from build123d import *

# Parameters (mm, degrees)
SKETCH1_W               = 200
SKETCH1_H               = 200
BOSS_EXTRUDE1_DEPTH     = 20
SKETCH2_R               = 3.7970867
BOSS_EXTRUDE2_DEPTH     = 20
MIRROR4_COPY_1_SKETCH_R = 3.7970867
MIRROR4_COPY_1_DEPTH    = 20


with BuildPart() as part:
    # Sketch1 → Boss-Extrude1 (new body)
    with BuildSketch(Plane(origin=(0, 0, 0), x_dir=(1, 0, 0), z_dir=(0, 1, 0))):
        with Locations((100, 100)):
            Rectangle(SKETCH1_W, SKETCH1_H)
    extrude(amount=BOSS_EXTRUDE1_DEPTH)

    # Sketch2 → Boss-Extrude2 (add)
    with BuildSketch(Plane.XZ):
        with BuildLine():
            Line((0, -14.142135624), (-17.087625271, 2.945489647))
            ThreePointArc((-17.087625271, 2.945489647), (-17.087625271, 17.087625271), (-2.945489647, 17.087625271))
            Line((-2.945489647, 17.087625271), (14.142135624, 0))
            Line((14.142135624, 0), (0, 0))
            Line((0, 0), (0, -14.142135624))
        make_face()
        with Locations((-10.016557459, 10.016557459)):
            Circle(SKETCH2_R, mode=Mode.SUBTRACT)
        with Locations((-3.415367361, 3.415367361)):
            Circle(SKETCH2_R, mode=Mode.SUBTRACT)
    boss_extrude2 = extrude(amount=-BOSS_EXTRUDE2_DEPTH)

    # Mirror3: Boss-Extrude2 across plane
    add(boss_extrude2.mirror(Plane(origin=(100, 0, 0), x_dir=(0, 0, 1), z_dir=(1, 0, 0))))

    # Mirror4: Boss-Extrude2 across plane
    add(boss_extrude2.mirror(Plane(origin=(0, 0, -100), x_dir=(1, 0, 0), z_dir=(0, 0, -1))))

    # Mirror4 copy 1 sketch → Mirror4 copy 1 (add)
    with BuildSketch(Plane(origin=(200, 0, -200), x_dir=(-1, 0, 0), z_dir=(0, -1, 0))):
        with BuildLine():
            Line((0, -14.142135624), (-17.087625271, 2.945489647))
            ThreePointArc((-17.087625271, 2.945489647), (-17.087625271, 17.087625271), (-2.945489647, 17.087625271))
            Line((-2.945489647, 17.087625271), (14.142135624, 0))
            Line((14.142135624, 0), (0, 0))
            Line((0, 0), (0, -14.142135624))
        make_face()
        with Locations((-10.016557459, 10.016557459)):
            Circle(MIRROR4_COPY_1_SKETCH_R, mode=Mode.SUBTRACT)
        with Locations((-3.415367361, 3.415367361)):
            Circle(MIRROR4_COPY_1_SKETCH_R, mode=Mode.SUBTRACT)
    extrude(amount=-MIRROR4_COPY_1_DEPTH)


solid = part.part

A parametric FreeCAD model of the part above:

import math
import FreeCAD as App
import Part
import Sketcher

V = App.Vector

doc = App.newDocument("Part")
body = doc.addObject("PartDesign::Body", "Body")

# Sketch on XZ plane
sketch1 = body.newObject("Sketcher::SketchObject", "Sketch")
sketch1.AttachmentSupport = (doc.getObject("XZ_Plane"), [""])
sketch1.MapMode = "FlatFace"
sketch1.addGeometry([
    Part.LineSegment(V(0, -200, 0), V(0, 0, 0)),
    Part.LineSegment(V(0, 0, 0), V(200, 0, 0)),
    Part.LineSegment(V(200, 0, 0), V(200, -200, 0)),
    Part.LineSegment(V(200, -200, 0), V(0, -200, 0)),
], False)
sketch1.addConstraint([
    Sketcher.Constraint("Coincident", 0, 2, 1, 1),
    Sketcher.Constraint("Coincident", 1, 2, 2, 1),
    Sketcher.Constraint("Coincident", 2, 2, 3, 1),
    Sketcher.Constraint("Coincident", 3, 2, 0, 1),
    Sketcher.Constraint("Vertical", 0),
    Sketcher.Constraint("Horizontal", 1),
    Sketcher.Constraint("Vertical", 2),
    Sketcher.Constraint("Horizontal", 3),
    Sketcher.Constraint("Coincident", 0, 2, -1, 1),
    Sketcher.Constraint("Equal", 3, 0),
    Sketcher.Constraint("DistanceX", 1, 1, 1, 2, 200.0),
])
pad1 = body.newObject("PartDesign::Pad", "Pad")
pad1.Profile = sketch1
pad1.Length = 20
pad1.Reversed = True

# Sketch on XZ plane
sketch2 = body.newObject("Sketcher::SketchObject", "Sketch001")
sketch2.AttachmentSupport = (doc.getObject("XZ_Plane"), [""])
sketch2.MapMode = "FlatFace"
sketch2.addGeometry([
    Part.LineSegment(V(-17.1, 2.9, 0), V(0, -14.1, 0)),  # 0
    Part.LineSegment(V(0, -14.1, 0), V(0, 0, 0)),  # 1
    Part.LineSegment(V(0, 0, 0), V(14.1, 0, 0)),  # 2
    Part.LineSegment(V(14.1, 0, 0), V(-2.9, 17.1, 0)),  # 3
    Part.ArcOfCircle(Part.Circle(V(-10, 10, 0), V(0, 0, 1), 10), math.radians(45), math.radians(225)),  # 4
    Part.Circle(V(-3.4, 3.4, 0), V(0, 0, 1), 3.8),  # 5
    Part.Circle(V(-10, 10, 0), V(0, 0, 1), 3.8),  # 6
], False)
sketch2.addConstraint([
    Sketcher.Constraint("Coincident", 0, 2, 1, 1),
    Sketcher.Constraint("Coincident", 1, 2, 2, 1),
    Sketcher.Constraint("Coincident", 2, 2, 3, 1),
    Sketcher.Constraint("Tangent", 3, 2, 4, 1),
    Sketcher.Constraint("Tangent", 4, 2, 0, 1),
    Sketcher.Constraint("Vertical", 1),
    Sketcher.Constraint("Horizontal", 2),
    Sketcher.Constraint("Coincident", 1, 2, -1, 1),
    Sketcher.Constraint("Coincident", 6, 3, 4, 3),
    Sketcher.Constraint("Equal", 5, 6),
    Sketcher.Constraint("Parallel", 0, 3),
    Sketcher.Constraint("Equal", 2, 1),
    Sketcher.Constraint("Equal", 0, 3),
    Sketcher.Constraint("Radius", 4, 10.0),
    Sketcher.Constraint("Diameter", 5, 7.594173),
    Sketcher.Constraint("Distance", 0, 24.165551),
    Sketcher.Constraint("DistanceX", 4, 3, 5, 3, 6.60119),
    Sketcher.Constraint("DistanceY", 5, 3, 4, 3, 6.60119),
])
pad2 = body.newObject("PartDesign::Pad", "Pad001")
pad2.Profile = sketch2
pad2.Length = 20
pad2.Reversed = True
doc.recompute()

datumplane = body.newObject("PartDesign::Plane", "DatumPlane")
datumplane.AttachmentSupport = (doc.getObject("YZ_Plane"), [""])
datumplane.MapMode = "FlatFace"
datumplane.AttachmentOffset = App.Placement(V(0, 0, 100), App.Rotation())
mirrored = body.newObject("PartDesign::Mirrored", "Mirrored")
mirrored.Originals = [pad2]
mirrored.MirrorPlane = (datumplane, [""])
body.Tip = mirrored
doc.recompute()

datumplane2 = body.newObject("PartDesign::Plane", "DatumPlane001")
datumplane2.AttachmentSupport = (doc.getObject("XY_Plane"), [""])
datumplane2.MapMode = "FlatFace"
datumplane2.AttachmentOffset = App.Placement(V(0, 0, -100), App.Rotation())
mirrored2 = body.newObject("PartDesign::Mirrored", "Mirrored001")
mirrored2.Originals = [pad2]
mirrored2.MirrorPlane = (datumplane2, [""])
body.Tip = mirrored2

# Sketch on XZ plane
sketch3 = body.newObject("Sketcher::SketchObject", "Sketch002")
sketch3.AttachmentSupport = (doc.getObject("XZ_Plane"), [""])
sketch3.MapMode = "FlatFace"
sketch3.addGeometry([
    Part.LineSegment(V(217.1, -202.9, 0), V(200, -185.9, 0)),  # 0
    Part.LineSegment(V(200, -185.9, 0), V(200, -200, 0)),  # 1
    Part.LineSegment(V(200, -200, 0), V(185.9, -200, 0)),  # 2
    Part.LineSegment(V(185.9, -200, 0), V(202.9, -217.1, 0)),  # 3
    Part.ArcOfCircle(Part.Circle(V(210, -210, 0), V(0, 0, 1), 10), math.radians(-135), math.radians(45)),  # 4
    Part.Circle(V(203.4, -203.4, 0), V(0, 0, 1), 3.8),  # 5
    Part.Circle(V(210, -210, 0), V(0, 0, 1), 3.8),  # 6
], False)
sketch3.addConstraint([
    Sketcher.Constraint("Coincident", 0, 2, 1, 1),
    Sketcher.Constraint("Coincident", 1, 2, 2, 1),
    Sketcher.Constraint("Coincident", 2, 2, 3, 1),
    Sketcher.Constraint("Tangent", 3, 2, 4, 1),
    Sketcher.Constraint("Tangent", 4, 2, 0, 1),
    Sketcher.Constraint("Vertical", 1),
    Sketcher.Constraint("Horizontal", 2),
    Sketcher.Constraint("Coincident", 6, 3, 4, 3),
    Sketcher.Constraint("Equal", 5, 6),
    Sketcher.Constraint("Parallel", 0, 3),
    Sketcher.Constraint("Equal", 2, 1),
    Sketcher.Constraint("Equal", 0, 3),
    Sketcher.Constraint("Radius", 4, 10.0),
    Sketcher.Constraint("DistanceX", -1, 1, 0, 2, 200.0),
    Sketcher.Constraint("DistanceY", 1, 2, -1, 1, 200.0),
    Sketcher.Constraint("Diameter", 5, 7.594173),
    Sketcher.Constraint("Distance", 0, 24.165551),
    Sketcher.Constraint("DistanceX", 5, 3, 4, 3, 6.60119),
    Sketcher.Constraint("DistanceY", 4, 3, 5, 3, 6.60119),
])
pad3 = body.newObject("PartDesign::Pad", "Pad002")
pad3.Profile = sketch3
pad3.Length = 20
pad3.Reversed = True

doc.recompute()
